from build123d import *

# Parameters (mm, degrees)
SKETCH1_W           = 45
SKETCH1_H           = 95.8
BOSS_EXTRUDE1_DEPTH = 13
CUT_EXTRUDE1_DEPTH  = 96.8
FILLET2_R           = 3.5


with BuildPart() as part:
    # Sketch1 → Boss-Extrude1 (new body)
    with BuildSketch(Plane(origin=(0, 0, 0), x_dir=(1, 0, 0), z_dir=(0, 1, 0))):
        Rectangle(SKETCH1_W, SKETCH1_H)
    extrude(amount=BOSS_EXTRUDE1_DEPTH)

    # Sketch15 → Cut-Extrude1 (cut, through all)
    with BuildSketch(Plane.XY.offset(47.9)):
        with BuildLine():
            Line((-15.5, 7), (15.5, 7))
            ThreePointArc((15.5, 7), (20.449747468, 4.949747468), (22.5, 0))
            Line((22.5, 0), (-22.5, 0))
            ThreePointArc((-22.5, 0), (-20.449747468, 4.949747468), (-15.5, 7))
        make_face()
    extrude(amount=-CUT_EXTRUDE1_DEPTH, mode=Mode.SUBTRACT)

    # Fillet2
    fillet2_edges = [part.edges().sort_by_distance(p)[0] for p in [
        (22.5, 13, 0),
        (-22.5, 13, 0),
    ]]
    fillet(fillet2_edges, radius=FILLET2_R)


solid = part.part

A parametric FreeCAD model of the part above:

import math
import FreeCAD as App
import Part
import Sketcher

V = App.Vector


def edges_at(feature, points):
    """Names of the edges that pass closest to the given points."""
    edges = feature.Shape.Edges
    near = lambda p: min(range(len(edges)), key=lambda i: edges[i].distToShape(Part.Vertex(*p))[0])
    return sorted({f"Edge{near(p) + 1}" for p in points})


def add_polygon(sketch, points):
    """Adds a closed chain of lines whose ends are joined by coincident constraints."""
    first, n = sketch.GeometryCount, len(points)
    for a, b in zip(points, points[1:] + points[:1]):
        sketch.addGeometry(Part.LineSegment(App.Vector(*a, 0), App.Vector(*b, 0)), False)
    for i in range(n):
        sketch.addConstraint(Sketcher.Constraint("Coincident", first + i, 2, first + (i + 1) % n, 1))

doc = App.newDocument("Part")
body = doc.addObject("PartDesign::Body", "Body")

# Sketch on XZ plane
sketch1 = body.newObject("Sketcher::SketchObject", "Sketch")
sketch1.AttachmentSupport = (doc.getObject("XZ_Plane"), [""])
sketch1.MapMode = "FlatFace"
add_polygon(sketch1, [(-22, -48), (-22, 48), (22, 48), (22, -48)])  # lines 0-3
sketch1.addConstraint([
    Sketcher.Constraint("Vertical", 0),
    Sketcher.Constraint("Horizontal", 1),
    Sketcher.Constraint("Vertical", 2),
    Sketcher.Constraint("Horizontal", 3),
    Sketcher.Constraint("Symmetric", 0, 2, 2, 2, -1, 1),
    Sketcher.Constraint("DistanceX", 1, 1, 1, 2, 45.0),
    Sketcher.Constraint("DistanceY", 0, 1, 0, 2, 95.8),
])
pad1 = body.newObject("PartDesign::Pad", "Pad")
pad1.Profile = sketch1
pad1.Length = 13
pad1.Reversed = True

# Sketch on XY plane
sketch2 = body.newObject("Sketcher::SketchObject", "Sketch001")
sketch2.AttachmentSupport = (doc.getObject("XY_Plane"), [""])
sketch2.MapMode = "FlatFace"
sketch2.AttachmentOffset = App.Placement(V(0, 0, 47.9), App.Rotation())
sketch2.addGeometry([
    Part.LineSegment(V(16, 7, 0), V(-16, 7, 0)),
    Part.ArcOfCircle(Part.Circle(V(-15, 0, 0), V(0, 0, 1), 7), math.radians(90), math.radians(180)),
    Part.LineSegment(V(-22, 0, 0), V(22, 0, 0)),
    Part.ArcOfCircle(Part.Circle(V(15, 0, 0), V(0, 0, 1), 7), math.radians(0), math.radians(90)),
], False)
sketch2.addConstraint([
    Sketcher.Constraint("Tangent", 0, 2, 1, 1),
    Sketcher.Constraint("Coincident", 1, 2, 2, 1),
    Sketcher.Constraint("Coincident", 2, 2, 3, 1),
    Sketcher.Constraint("Tangent", 3, 2, 0, 1),
    Sketcher.Constraint("Horizontal", 0),
    Sketcher.Constraint("Horizontal", 2),
    Sketcher.Constraint("Equal", 1, 3),
    Sketcher.Constraint("Symmetric", 1, 3, 3, 3, -1, 1),
    Sketcher.Constraint("PointOnObject", 1, 2, -1),
    Sketcher.Constraint("Radius", 1, 7.0),
    Sketcher.Constraint("DistanceX", 0, 2, 0, 1, 31.0),
])
pocket1 = body.newObject("PartDesign::Pocket", "Pocket")
pocket1.Profile = sketch2
pocket1.Type = "ThroughAll"
doc.recompute()

fillet = body.newObject("PartDesign::Fillet", "Fillet")
fillet.Base = (pocket1, edges_at(pocket1, [(22.5, 13, 0), (-22.5, 13, 0)]))
fillet.Radius = 3.5

doc.recompute()
